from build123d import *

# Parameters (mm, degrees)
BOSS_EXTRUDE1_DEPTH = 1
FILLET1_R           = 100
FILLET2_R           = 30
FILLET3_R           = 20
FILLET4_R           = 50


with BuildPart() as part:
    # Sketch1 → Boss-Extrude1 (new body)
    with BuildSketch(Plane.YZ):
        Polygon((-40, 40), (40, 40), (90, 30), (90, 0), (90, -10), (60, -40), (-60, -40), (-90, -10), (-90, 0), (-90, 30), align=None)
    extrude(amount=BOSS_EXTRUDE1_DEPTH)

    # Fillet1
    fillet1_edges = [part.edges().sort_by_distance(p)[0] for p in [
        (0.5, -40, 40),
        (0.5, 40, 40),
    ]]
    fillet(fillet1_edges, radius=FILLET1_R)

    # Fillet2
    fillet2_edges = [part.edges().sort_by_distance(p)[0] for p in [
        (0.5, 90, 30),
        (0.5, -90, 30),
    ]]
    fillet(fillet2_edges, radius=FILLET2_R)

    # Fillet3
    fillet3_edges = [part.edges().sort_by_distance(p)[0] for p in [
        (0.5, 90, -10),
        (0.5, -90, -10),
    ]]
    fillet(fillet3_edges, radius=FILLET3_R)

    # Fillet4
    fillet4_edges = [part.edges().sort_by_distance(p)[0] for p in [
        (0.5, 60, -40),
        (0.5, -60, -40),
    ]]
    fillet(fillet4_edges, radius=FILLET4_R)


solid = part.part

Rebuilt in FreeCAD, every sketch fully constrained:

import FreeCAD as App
import Part
import Sketcher
Q = App.Units.Quantity


def edges_at(feature, points):
    """Names of the edges that pass closest to the given points."""
    edges = feature.Shape.Edges
    near = lambda p: min(range(len(edges)), key=lambda i: edges[i].distToShape(Part.Vertex(*p))[0])
    return sorted({f"Edge{near(p) + 1}" for p in points})

doc = App.newDocument("Part")
body = doc.addObject("PartDesign::Body", "Body")

# Sketch on YZ plane
sketch1 = doc.addObject("Sketcher::SketchObject", "Sketch")
body.addObject(sketch1)
sketch1.AttachmentSupport = (doc.YZ_Plane, [""])
sketch1.MapMode = "FlatFace"
sketch1.addGeometry([
    Part.LineSegment(App.Vector(40, 40, 0), App.Vector(-40, 40, 0)),  # 0
    Part.LineSegment(App.Vector(-40, 40, 0), App.Vector(-90, 30, 0)),  # 1
    Part.LineSegment(App.Vector(-90, 30, 0), App.Vector(-90, -10, 0)),  # 2
    Part.LineSegment(App.Vector(-90, -10, 0), App.Vector(-60, -40, 0)),  # 3
    Part.LineSegment(App.Vector(-60, -40, 0), App.Vector(60, -40, 0)),  # 4
    Part.LineSegment(App.Vector(60, -40, 0), App.Vector(90, -10, 0)),  # 5
    Part.LineSegment(App.Vector(90, -10, 0), App.Vector(90, 30, 0)),  # 6
    Part.LineSegment(App.Vector(90, 30, 0), App.Vector(40, 40, 0)),  # 7
], False)
sketch1.addConstraint([
    Sketcher.Constraint("Coincident", 0, 2, 1, 1),
    Sketcher.Constraint("Coincident", 1, 2, 2, 1),
    Sketcher.Constraint("Coincident", 2, 2, 3, 1),
    Sketcher.Constraint("Coincident", 3, 2, 4, 1),
    Sketcher.Constraint("Coincident", 4, 2, 5, 1),
    Sketcher.Constraint("Coincident", 5, 2, 6, 1),
    Sketcher.Constraint("Coincident", 6, 2, 7, 1),
    Sketcher.Constraint("Coincident", 7, 2, 0, 1),
    Sketcher.Constraint("Horizontal", 0),
    Sketcher.Constraint("Vertical", 2),
    Sketcher.Constraint("Horizontal", 4),
    Sketcher.Constraint("Vertical", 6),
    Sketcher.Constraint("Symmetric", 2, 2, 5, 2, -2),
    Sketcher.Constraint("Perpendicular", 3, 5),
    Sketcher.Constraint("Horizontal", 1, 2, 6, 2),
    Sketcher.Constraint("Equal", 3, 5),
    Sketcher.Constraint("Equal", 1, 7),
    Sketcher.Constraint("DistanceX", 0, 2, 0, 1, Q("80 mm")),
    Sketcher.Constraint("DistanceX", 4, 1, 4, 2, Q("120 mm")),
    Sketcher.Constraint("DistanceY", 2, 2, 2, 1, Q("40 mm")),
    Sketcher.Constraint("DistanceY", -1, 1, 0, 2, Q("40 mm")),
    Sketcher.Constraint("DistanceX", 1, 2, -1, 1, Q("90 mm")),
    Sketcher.Constraint("DistanceY", -1, 1, 1, 2, Q("30 mm")),
])
pad1 = doc.addObject("PartDesign::Pad", "Pad")
body.addObject(pad1)
pad1.Profile = sketch1
pad1.Length = 1
doc.recompute()

fillet = doc.addObject("PartDesign::Fillet", "Fillet")
body.addObject(fillet)
fillet.Base = (pad1, edges_at(pad1, [(0.5, -40, 40), (0.5, 40, 40)]))
fillet.Radius = 100
doc.recompute()

fillet2 = doc.addObject("PartDesign::Fillet", "Fillet001")
body.addObject(fillet2)
fillet2.Base = (fillet, edges_at(fillet, [(0.5, 90, 30), (0.5, -90, 30)]))
fillet2.Radius = 30
doc.recompute()

fillet3 = doc.addObject("PartDesign::Fillet", "Fillet002")
body.addObject(fillet3)
fillet3.Base = (fillet2, edges_at(fillet2, [(0.5, 90, -10), (0.5, -90, -10)]))
fillet3.Radius = 20
doc.recompute()

fillet4 = doc.addObject("PartDesign::Fillet", "Fillet003")
body.addObject(fillet4)
fillet4.Base = (fillet3, edges_at(fillet3, [(0.5, 60, -40), (0.5, -60, -40)]))
fillet4.Radius = 50

doc.recompute()
